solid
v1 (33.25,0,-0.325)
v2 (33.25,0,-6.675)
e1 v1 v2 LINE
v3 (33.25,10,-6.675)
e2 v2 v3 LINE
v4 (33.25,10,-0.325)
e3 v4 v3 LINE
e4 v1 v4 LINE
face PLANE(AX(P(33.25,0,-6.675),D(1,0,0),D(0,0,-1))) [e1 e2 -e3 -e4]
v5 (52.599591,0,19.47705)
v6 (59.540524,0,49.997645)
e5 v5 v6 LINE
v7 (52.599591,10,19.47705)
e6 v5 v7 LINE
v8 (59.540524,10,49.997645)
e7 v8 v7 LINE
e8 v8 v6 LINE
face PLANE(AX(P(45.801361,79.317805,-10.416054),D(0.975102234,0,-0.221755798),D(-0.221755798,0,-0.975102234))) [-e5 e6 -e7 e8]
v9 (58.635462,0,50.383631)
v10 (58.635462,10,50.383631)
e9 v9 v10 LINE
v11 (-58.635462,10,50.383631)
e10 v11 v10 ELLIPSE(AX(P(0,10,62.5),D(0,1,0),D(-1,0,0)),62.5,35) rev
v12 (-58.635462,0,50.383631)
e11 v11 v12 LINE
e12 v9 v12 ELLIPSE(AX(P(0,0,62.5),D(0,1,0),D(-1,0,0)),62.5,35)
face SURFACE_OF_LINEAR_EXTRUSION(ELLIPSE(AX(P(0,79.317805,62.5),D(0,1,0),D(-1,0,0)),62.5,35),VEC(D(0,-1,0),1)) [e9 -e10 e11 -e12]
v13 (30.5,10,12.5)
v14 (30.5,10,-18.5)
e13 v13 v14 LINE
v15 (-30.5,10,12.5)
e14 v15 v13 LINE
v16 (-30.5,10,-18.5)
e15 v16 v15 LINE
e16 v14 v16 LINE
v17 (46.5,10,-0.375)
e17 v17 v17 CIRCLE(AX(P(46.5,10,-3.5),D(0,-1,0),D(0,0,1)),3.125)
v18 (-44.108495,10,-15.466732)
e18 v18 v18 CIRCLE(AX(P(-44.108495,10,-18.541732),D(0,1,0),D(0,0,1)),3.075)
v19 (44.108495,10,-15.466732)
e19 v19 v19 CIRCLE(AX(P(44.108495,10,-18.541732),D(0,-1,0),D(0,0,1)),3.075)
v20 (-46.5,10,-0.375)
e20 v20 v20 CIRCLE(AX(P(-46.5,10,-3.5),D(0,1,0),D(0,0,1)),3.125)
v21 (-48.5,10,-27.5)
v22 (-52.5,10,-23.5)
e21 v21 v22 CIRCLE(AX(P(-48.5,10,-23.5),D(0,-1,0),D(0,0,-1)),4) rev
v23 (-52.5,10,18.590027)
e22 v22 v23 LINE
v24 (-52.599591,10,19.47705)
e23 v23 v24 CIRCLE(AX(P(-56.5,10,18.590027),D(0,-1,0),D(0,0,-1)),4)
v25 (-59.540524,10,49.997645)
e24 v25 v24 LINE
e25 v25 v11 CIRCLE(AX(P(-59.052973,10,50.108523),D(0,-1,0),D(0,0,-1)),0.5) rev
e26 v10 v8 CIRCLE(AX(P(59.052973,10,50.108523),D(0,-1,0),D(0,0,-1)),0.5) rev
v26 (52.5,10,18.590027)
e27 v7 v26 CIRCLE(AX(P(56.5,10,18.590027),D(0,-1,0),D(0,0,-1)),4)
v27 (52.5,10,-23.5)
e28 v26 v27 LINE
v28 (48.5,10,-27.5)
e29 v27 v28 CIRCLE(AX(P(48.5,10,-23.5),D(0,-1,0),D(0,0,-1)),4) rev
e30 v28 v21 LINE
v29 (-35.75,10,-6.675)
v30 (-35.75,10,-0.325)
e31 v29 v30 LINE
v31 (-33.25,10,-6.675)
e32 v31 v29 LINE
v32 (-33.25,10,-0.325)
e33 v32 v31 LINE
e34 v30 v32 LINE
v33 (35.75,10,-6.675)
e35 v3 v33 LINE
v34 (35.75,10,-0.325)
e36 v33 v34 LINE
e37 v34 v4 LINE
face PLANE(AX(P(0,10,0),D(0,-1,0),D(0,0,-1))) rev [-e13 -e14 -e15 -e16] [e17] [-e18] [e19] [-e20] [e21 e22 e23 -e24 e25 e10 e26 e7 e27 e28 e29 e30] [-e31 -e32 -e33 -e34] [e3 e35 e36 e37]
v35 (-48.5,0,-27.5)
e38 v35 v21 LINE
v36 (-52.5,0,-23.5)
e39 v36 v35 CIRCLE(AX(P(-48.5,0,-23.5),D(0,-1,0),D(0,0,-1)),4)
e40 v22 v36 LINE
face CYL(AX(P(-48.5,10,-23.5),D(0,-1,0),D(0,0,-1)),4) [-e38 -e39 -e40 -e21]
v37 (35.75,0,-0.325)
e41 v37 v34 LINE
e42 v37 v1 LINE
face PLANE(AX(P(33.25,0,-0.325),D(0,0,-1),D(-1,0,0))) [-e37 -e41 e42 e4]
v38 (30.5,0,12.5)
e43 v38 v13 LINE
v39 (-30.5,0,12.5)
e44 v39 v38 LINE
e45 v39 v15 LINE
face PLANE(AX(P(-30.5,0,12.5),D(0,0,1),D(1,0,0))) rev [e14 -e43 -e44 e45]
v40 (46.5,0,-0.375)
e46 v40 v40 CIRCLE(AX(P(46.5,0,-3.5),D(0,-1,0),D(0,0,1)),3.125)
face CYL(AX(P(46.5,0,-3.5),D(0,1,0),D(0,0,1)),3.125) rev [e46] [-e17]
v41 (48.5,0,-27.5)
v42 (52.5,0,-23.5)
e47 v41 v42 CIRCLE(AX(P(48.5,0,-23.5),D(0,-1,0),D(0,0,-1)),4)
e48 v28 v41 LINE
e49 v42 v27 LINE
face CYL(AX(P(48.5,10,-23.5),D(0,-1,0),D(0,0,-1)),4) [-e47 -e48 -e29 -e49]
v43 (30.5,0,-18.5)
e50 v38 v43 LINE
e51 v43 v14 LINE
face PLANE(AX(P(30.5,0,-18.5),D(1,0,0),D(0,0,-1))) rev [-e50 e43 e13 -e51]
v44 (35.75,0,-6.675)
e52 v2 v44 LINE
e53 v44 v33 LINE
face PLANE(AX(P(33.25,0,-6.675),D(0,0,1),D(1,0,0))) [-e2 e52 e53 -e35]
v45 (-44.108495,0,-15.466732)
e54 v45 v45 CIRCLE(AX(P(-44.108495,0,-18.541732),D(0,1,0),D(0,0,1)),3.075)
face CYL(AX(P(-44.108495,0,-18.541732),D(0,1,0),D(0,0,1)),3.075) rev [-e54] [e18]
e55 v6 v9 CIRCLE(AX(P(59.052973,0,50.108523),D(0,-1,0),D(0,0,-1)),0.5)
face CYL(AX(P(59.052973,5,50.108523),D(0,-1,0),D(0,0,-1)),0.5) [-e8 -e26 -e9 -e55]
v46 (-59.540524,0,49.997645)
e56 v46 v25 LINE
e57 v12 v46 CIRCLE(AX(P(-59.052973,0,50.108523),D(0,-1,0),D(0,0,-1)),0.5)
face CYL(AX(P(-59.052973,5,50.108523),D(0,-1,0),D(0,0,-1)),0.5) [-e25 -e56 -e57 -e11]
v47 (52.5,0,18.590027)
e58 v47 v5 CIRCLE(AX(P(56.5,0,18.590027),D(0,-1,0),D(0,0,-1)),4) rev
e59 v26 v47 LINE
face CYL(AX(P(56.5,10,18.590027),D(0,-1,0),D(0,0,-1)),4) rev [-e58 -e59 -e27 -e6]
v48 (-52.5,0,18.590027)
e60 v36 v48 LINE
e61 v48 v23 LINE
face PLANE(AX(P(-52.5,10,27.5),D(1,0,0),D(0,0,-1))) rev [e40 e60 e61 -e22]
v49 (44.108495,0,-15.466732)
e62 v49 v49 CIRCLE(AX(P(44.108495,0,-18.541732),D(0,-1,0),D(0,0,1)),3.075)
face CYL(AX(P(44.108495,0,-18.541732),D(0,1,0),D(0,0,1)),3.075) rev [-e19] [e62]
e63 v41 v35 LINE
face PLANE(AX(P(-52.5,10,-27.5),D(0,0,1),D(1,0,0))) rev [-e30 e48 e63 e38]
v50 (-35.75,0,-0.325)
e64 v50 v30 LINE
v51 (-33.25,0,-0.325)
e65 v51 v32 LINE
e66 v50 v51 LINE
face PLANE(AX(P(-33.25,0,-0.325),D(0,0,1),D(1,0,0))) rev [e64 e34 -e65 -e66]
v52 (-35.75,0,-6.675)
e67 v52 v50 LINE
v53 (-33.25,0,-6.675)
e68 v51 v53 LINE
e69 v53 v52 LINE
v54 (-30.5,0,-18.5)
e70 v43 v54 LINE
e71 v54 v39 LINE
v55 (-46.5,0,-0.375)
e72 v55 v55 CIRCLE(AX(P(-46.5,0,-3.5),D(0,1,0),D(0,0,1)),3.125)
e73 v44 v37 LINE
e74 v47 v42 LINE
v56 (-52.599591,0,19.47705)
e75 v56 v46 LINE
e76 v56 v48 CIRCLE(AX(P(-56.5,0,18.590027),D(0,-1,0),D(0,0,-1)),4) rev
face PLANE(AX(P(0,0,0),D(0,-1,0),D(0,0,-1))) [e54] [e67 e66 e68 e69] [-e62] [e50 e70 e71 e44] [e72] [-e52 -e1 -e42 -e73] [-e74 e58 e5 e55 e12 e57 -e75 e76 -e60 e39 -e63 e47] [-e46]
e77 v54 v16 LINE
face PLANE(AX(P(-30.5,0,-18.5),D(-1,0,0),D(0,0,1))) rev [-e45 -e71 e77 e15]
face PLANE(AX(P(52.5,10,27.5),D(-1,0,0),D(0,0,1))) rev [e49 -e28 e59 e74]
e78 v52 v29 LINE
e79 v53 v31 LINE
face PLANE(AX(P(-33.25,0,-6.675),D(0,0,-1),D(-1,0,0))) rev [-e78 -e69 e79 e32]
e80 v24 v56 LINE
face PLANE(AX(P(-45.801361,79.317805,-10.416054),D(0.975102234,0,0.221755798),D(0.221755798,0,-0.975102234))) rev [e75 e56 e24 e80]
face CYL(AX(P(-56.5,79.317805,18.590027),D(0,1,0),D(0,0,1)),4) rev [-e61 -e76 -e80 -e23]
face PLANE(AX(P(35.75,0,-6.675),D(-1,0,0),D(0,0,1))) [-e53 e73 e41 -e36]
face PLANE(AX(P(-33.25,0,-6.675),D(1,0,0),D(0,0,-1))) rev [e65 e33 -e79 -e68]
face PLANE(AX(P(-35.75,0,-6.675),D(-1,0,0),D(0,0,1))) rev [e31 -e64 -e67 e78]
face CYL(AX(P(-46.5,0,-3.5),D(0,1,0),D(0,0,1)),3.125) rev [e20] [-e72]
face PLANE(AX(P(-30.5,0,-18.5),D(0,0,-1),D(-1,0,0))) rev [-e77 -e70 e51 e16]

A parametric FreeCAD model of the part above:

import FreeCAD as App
import Part
import Sketcher


def edges_at(feature, points):
    """Names of the edges that pass closest to the given points."""
    edges = feature.Shape.Edges
    near = lambda p: min(range(len(edges)), key=lambda i: edges[i].distToShape(Part.Vertex(*p))[0])
    return sorted({f"Edge{near(p) + 1}" for p in points})

doc = App.newDocument("Part")
body = doc.addObject("PartDesign::Body", "Body")

sketch1 = doc.addObject("Sketcher::SketchObject", "Sketch")
body.addObject(sketch1)
sketch1.AttachmentSupport = (doc.XZ_Plane, [""])
sketch1.MapMode = "FlatFace"
sketch1.addGeometry([
    Part.LineSegment(App.Vector(-52, -28, 0), App.Vector(-52, 28, 0)),
    Part.LineSegment(App.Vector(-52, 28, 0), App.Vector(52, 28, 0)),
    Part.LineSegment(App.Vector(52, 28, 0), App.Vector(52, -28, 0)),
    Part.LineSegment(App.Vector(52, -28, 0), App.Vector(-52, -28, 0)),
], False)
sketch1.addConstraint([
    Sketcher.Constraint("Coincident", 0, 2, 1, 1),
    Sketcher.Constraint("Coincident", 1, 2, 2, 1),
    Sketcher.Constraint("Coincident", 2, 2, 3, 1),
    Sketcher.Constraint("Coincident", 3, 2, 0, 1),
    Sketcher.Constraint("Vertical", 0),
    Sketcher.Constraint("Horizontal", 1),
    Sketcher.Constraint("Vertical", 2),
    Sketcher.Constraint("Horizontal", 3),
    Sketcher.Constraint("Symmetric", 0, 2, 2, 2, -1, 1),
    Sketcher.Constraint("DistanceX", 1, 1, 1, 2, 105.0),
    Sketcher.Constraint("DistanceY", 0, 1, 0, 2, 55.0),
])
pad1 = doc.addObject("PartDesign::Pad", "Pad")
body.addObject(pad1)
pad1.Profile = sketch1
pad1.Length = 10
pad1.Reversed = True

sketch2 = doc.addObject("Sketcher::SketchObject", "Sketch001")
body.addObject(sketch2)
sketch2.AttachmentSupport = (doc.XZ_Plane, [""])
sketch2.MapMode = "FlatFace"
sketch2.AttachmentOffset = App.Placement(App.Vector(0, 0, -10), App.Rotation())
sketch2.addGeometry([
    Part.LineSegment(App.Vector(-30, -18, 0), App.Vector(-30, 12, 0)),
    Part.LineSegment(App.Vector(-30, 12, 0), App.Vector(30, 12, 0)),
    Part.LineSegment(App.Vector(30, 12, 0), App.Vector(30, -18, 0)),
    Part.LineSegment(App.Vector(30, -18, 0), App.Vector(-30, -18, 0)),
], False)
sketch2.addConstraint([
    Sketcher.Constraint("Coincident", 0, 2, 1, 1),
    Sketcher.Constraint("Coincident", 1, 2, 2, 1),
    Sketcher.Constraint("Coincident", 2, 2, 3, 1),
    Sketcher.Constraint("Coincident", 3, 2, 0, 1),
    Sketcher.Constraint("Vertical", 0),
    Sketcher.Constraint("Horizontal", 1),
    Sketcher.Constraint("Vertical", 2),
    Sketcher.Constraint("Horizontal", 3),
    Sketcher.Constraint("DistanceX", 1, 1, 1, 2, 61.0),
    Sketcher.Constraint("DistanceY", 0, 1, 0, 2, 31.0),
    Sketcher.Constraint("DistanceX", 0, 2, -1, 1, 30.5),
    Sketcher.Constraint("DistanceY", -1, 1, 0, 2, 12.5),
])
pocket1 = doc.addObject("PartDesign::Pocket", "Pocket")
body.addObject(pocket1)
pocket1.Profile = sketch2
pocket1.Type = "ThroughAll"
pocket1.Reversed = True

sketch3 = doc.addObject("Sketcher::SketchObject", "Sketch002")
body.addObject(sketch3)
sketch3.AttachmentSupport = (doc.XZ_Plane, [""])
sketch3.MapMode = "FlatFace"
sketch3.AttachmentOffset = App.Placement(App.Vector(0, 0, -10), App.Rotation())
sketch3.addGeometry([
    Part.Circle(App.Vector(-46.5, -3.5, 0), App.Vector(0, 0, 1), 3.1),
    Part.LineSegment(App.Vector(-35.8, -6.7, 0), App.Vector(-35.8, -0.3, 0)),
    Part.LineSegment(App.Vector(-35.8, -0.3, 0), App.Vector(-33.2, -0.3, 0)),
    Part.LineSegment(App.Vector(-33.2, -0.3, 0), App.Vector(-33.2, -6.7, 0)),
    Part.LineSegment(App.Vector(-33.2, -6.7, 0), App.Vector(-35.8, -6.7, 0)),
], False)
sketch3.addConstraint([
    Sketcher.Constraint("Coincident", 1, 2, 2, 1),
    Sketcher.Constraint("Coincident", 2, 2, 3, 1),
    Sketcher.Constraint("Coincident", 3, 2, 4, 1),
    Sketcher.Constraint("Coincident", 4, 2, 1, 1),
    Sketcher.Constraint("Vertical", 1),
    Sketcher.Constraint("Horizontal", 2),
    Sketcher.Constraint("Vertical", 3),
    Sketcher.Constraint("Horizontal", 4),
    Sketcher.Constraint("Diameter", 0, 6.25),
    Sketcher.Constraint("DistanceX", 2, 1, 2, 2, 2.5),
    Sketcher.Constraint("DistanceY", 1, 1, 1, 2, 6.35),
    Sketcher.Constraint("DistanceX", 0, 3, -1, 1, 46.5),
    Sketcher.Constraint("DistanceY", 0, 3, -1, 1, 3.5),
    Sketcher.Constraint("DistanceX", 1, 2, -1, 1, 35.75),
    Sketcher.Constraint("DistanceY", 1, 2, -1, 1, 0.325),
])
pocket2 = doc.addObject("PartDesign::Pocket", "Pocket001")
body.addObject(pocket2)
pocket2.Profile = sketch3
pocket2.Type = "ThroughAll"
pocket2.Reversed = True

sketch4 = doc.addObject("Sketcher::SketchObject", "Sketch003")
body.addObject(sketch4)
sketch4.AttachmentSupport = (doc.XZ_Plane, [""])
sketch4.MapMode = "FlatFace"
sketch4.addGeometry([
    Part.LineSegment(App.Vector(0, 27.5, 0), App.Vector(-52.5, 19.039129, 0)),
    Part.LineSegment(App.Vector(-52.5, 19.039129, 0), App.Vector(-60.282246, 53.259137, 0)),
    Part.BSplineCurve([App.Vector(0, 27.5, 0), App.Vector(-47.69072, 27.5, 0), App.Vector(-60.282246, 53.259137, 0)], [3, 3], [4.71238898, 6.015992757], False, 2, [1, 0.794992028, 1], False),
], False)
sketch4.addConstraint([
    Sketcher.Constraint("Block", 2),
    Sketcher.Constraint("Coincident", 0, 2, 1, 1),
    Sketcher.Constraint("Coincident", 1, 2, 2, 2),
    Sketcher.Constraint("Coincident", 2, 1, 0, 1),
    Sketcher.Constraint("DistanceX", 0, 2, -1, 1, 52.5),
    Sketcher.Constraint("DistanceY", -1, 1, 0, 2, 19.039129),
])
pad2 = doc.addObject("PartDesign::Pad", "Pad001")
body.addObject(pad2)
pad2.Profile = sketch4
pad2.Length = 10
pad2.Reversed = True

sketch5 = doc.addObject("Sketcher::SketchObject", "Sketch004")
body.addObject(sketch5)
sketch5.AttachmentSupport = (doc.XZ_Plane, [""])
sketch5.MapMode = "FlatFace"
sketch5.AttachmentOffset = App.Placement(App.Vector(0, 0, -10), App.Rotation())
sketch5.addGeometry(Part.Circle(App.Vector(-44.1, -18.5, 0), App.Vector(0, 0, 1), 3.1), False)
sketch5.addConstraint([
    Sketcher.Constraint("Diameter", 0, 6.15),
    Sketcher.Constraint("DistanceX", 0, 3, -1, 1, 44.108495),
    Sketcher.Constraint("DistanceY", 0, 3, -1, 1, 18.541732),
])
pocket3 = doc.addObject("PartDesign::Pocket", "Pocket002")
body.addObject(pocket3)
pocket3.Profile = sketch5
pocket3.Type = "ThroughAll"
pocket3.Reversed = True
doc.recompute()

mirrored = doc.addObject("PartDesign::Mirrored", "Mirrored")
body.addObject(mirrored)
mirrored.Originals = [pocket2, pad2, pocket3]
mirrored.MirrorPlane = (doc.YZ_Plane, [""])
body.Tip = mirrored
doc.recompute()

fillet = doc.addObject("PartDesign::Fillet", "Fillet")
body.addObject(fillet)
fillet.Base = (mirrored, edges_at(mirrored, [
    (-52.5, 5, 19.039),
    (-52.5, 5, -27.5),
    (52.5, 5, -27.5),
    (52.5, 5, 19.039),
]))
fillet.Radius = 4
doc.recompute()

fillet2 = doc.addObject("PartDesign::Fillet", "Fillet001")
body.addObject(fillet2)
fillet2.Base = (fillet, edges_at(fillet, [(60.282, 5, 53.259), (-60.282, 5, 53.259)]))
fillet2.Radius = 0.5

doc.recompute()
